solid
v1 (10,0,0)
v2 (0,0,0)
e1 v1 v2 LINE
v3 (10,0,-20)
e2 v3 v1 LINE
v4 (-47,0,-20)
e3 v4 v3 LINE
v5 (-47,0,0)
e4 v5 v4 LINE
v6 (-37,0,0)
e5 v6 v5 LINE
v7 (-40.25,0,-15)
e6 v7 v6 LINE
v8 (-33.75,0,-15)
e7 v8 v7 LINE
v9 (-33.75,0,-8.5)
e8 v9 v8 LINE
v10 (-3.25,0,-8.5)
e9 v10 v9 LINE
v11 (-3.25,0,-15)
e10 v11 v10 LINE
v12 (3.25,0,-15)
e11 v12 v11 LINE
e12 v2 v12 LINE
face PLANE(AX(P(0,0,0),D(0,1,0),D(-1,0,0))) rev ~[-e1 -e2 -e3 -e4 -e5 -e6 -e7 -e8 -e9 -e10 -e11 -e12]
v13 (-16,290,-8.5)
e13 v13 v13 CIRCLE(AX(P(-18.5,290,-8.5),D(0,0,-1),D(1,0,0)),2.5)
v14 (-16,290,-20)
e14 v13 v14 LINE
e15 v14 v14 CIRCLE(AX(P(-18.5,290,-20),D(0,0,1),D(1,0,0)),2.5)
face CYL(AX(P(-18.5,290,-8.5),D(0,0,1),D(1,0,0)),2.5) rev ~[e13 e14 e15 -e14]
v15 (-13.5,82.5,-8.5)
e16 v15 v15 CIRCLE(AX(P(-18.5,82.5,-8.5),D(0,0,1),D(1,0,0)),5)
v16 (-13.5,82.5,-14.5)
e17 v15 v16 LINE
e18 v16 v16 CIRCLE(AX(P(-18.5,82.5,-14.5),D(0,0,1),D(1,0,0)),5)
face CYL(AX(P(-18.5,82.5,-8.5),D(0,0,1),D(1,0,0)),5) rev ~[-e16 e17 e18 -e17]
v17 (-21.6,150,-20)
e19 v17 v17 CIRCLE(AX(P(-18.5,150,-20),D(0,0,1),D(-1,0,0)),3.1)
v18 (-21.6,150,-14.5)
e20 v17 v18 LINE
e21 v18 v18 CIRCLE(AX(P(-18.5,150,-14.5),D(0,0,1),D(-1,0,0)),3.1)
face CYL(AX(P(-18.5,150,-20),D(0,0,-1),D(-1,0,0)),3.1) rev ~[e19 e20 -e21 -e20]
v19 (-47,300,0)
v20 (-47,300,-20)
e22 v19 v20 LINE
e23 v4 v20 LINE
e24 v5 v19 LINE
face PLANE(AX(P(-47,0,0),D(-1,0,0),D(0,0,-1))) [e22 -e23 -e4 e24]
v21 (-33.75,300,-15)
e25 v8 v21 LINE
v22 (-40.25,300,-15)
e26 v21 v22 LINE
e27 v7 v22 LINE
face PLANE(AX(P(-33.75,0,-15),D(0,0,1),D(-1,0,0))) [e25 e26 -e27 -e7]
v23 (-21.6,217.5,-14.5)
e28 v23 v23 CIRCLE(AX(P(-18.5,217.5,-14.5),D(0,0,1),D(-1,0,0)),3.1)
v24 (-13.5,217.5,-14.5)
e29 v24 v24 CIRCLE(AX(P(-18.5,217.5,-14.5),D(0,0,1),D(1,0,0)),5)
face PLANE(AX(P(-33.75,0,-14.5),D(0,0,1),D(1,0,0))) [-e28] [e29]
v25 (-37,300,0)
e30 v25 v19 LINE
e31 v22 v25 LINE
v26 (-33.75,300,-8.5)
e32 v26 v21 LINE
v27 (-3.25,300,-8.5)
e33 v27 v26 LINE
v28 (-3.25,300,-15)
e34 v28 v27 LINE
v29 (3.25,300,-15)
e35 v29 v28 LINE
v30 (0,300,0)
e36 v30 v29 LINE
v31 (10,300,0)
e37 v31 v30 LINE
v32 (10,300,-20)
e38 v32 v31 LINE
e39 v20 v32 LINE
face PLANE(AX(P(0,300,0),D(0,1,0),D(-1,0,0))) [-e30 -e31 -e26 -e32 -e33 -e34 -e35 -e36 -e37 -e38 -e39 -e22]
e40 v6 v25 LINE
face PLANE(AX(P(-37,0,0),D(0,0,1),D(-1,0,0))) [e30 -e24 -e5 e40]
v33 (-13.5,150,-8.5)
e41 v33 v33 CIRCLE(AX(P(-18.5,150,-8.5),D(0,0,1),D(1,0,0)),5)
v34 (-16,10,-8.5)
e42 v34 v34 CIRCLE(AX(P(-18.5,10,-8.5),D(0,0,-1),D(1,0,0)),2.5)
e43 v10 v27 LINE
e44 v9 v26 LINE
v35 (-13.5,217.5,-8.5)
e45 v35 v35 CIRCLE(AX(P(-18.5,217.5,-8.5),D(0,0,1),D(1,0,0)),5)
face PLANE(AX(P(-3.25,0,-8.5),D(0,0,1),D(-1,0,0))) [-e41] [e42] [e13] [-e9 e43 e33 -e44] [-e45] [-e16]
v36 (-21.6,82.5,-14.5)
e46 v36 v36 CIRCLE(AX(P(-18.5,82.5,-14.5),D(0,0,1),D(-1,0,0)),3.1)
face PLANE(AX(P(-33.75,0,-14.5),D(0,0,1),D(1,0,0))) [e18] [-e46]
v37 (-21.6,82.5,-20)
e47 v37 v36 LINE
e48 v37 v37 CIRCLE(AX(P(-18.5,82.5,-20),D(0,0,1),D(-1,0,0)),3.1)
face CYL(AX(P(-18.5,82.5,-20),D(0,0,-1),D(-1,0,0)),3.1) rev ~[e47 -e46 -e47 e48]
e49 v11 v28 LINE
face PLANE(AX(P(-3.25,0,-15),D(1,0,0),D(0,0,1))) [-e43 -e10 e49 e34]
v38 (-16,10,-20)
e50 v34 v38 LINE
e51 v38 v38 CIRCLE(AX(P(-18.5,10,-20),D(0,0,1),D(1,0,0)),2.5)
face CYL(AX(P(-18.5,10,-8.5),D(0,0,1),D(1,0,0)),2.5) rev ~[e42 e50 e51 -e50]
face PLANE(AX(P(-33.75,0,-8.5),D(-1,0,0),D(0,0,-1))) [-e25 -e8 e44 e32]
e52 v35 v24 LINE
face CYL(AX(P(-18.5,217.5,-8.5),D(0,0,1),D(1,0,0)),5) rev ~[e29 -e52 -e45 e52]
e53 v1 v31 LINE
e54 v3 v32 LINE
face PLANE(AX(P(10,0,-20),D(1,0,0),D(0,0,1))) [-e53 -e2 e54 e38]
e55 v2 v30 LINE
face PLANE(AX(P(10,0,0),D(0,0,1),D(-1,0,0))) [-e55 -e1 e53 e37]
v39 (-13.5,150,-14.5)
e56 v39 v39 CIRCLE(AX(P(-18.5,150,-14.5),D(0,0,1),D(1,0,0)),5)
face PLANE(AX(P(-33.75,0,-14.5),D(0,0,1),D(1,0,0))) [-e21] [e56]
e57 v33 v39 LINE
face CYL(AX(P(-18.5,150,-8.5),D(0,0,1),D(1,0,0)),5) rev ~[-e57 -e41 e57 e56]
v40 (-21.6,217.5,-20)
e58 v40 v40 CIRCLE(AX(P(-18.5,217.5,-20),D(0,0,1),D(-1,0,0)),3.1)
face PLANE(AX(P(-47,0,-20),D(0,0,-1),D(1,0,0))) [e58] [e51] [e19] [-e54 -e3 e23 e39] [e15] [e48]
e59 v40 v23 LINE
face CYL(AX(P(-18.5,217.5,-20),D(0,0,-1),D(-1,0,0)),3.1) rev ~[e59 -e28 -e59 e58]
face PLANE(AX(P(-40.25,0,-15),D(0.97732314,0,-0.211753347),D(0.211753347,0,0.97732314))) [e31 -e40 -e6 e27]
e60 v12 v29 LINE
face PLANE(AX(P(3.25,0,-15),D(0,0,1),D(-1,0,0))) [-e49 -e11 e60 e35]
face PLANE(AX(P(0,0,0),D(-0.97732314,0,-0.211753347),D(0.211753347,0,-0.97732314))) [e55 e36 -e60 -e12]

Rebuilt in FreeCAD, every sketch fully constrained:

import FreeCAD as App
import Part
import Sketcher

V = App.Vector

doc = App.newDocument("Part")
body = doc.addObject("PartDesign::Body", "Body")

sketch1 = body.newObject("Sketcher::SketchObject", "Sketch")
sketch1.AttachmentSupport = (doc.getObject("XZ_Plane"), [""])
sketch1.MapMode = "FlatFace"
sketch1.addGeometry([
    Part.LineSegment(V(-47, 0, 0), V(-37, 0, 0)),
    Part.LineSegment(V(-37, 0, 0), V(-40, -15, 0)),
    Part.LineSegment(V(-40, -15, 0), V(-34, -15, 0)),
    Part.LineSegment(V(-34, -15, 0), V(-34, -8, 0)),
    Part.LineSegment(V(-34, -8, 0), V(-3, -8, 0)),
    Part.LineSegment(V(-3, -8, 0), V(-3, -15, 0)),
    Part.LineSegment(V(-3, -15, 0), V(3, -15, 0)),
    Part.LineSegment(V(3, -15, 0), V(0, 0, 0)),
    Part.LineSegment(V(0, 0, 0), V(10, 0, 0)),
    Part.LineSegment(V(10, 0, 0), V(10, -20, 0)),
    Part.LineSegment(V(10, -20, 0), V(-47, -20, 0)),
    Part.LineSegment(V(-47, -20, 0), V(-47, 0, 0)),
], False)
sketch1.addConstraint([
    Sketcher.Constraint("Coincident", 0, 2, 1, 1),
    Sketcher.Constraint("Coincident", 1, 2, 2, 1),
    Sketcher.Constraint("Coincident", 2, 2, 3, 1),
    Sketcher.Constraint("Coincident", 3, 2, 4, 1),
    Sketcher.Constraint("Coincident", 4, 2, 5, 1),
    Sketcher.Constraint("Coincident", 5, 2, 6, 1),
    Sketcher.Constraint("Coincident", 6, 2, 7, 1),
    Sketcher.Constraint("Coincident", 7, 2, 8, 1),
    Sketcher.Constraint("Coincident", 8, 2, 9, 1),
    Sketcher.Constraint("Coincident", 9, 2, 10, 1),
    Sketcher.Constraint("Coincident", 10, 2, 11, 1),
    Sketcher.Constraint("Coincident", 11, 2, 0, 1),
    Sketcher.Constraint("Horizontal", 0),
    Sketcher.Constraint("Horizontal", 2),
    Sketcher.Constraint("Vertical", 3),
    Sketcher.Constraint("Horizontal", 4),
    Sketcher.Constraint("Vertical", 5),
    Sketcher.Constraint("Horizontal", 6),
    Sketcher.Constraint("Horizontal", 8),
    Sketcher.Constraint("Vertical", 9),
    Sketcher.Constraint("Horizontal", 10),
    Sketcher.Constraint("Vertical", 11),
    Sketcher.Constraint("Coincident", 7, 2, -1, 1),
    Sketcher.Constraint("PointOnObject", 0, 2, -1),
    Sketcher.Constraint("Horizontal", 2, 2, 5, 2),
    Sketcher.Constraint("Equal", 2, 6),
    Sketcher.Constraint("Equal", 0, 8),
    Sketcher.Constraint("Equal", 6, 3),
    Sketcher.Constraint("Equal", 1, 7),
    Sketcher.Constraint("DistanceX", 0, 1, 0, 2, 10.0),
    Sketcher.Constraint("DistanceY", 9, 2, 9, 1, 20.0),
    Sketcher.Constraint("DistanceX", 10, 2, 10, 1, 57.0),
    Sketcher.Constraint("DistanceX", 2, 1, 2, 2, 6.5),
    Sketcher.Constraint("DistanceX", 4, 1, 4, 2, 30.5),
    Sketcher.Constraint("DistanceY", 1, 2, -1, 1, 15.0),
])
pad1 = body.newObject("PartDesign::Pad", "Pad")
pad1.Profile = sketch1
pad1.Length = 300
pad1.Reversed = True

sketch2 = body.newObject("Sketcher::SketchObject", "Sketch001")
sketch2.AttachmentSupport = (doc.getObject("XY_Plane"), [""])
sketch2.MapMode = "FlatFace"
sketch2.AttachmentOffset = App.Placement(V(0, 0, -20), App.Rotation())
sketch2.addGeometry([
    Part.Circle(V(-18.5, 82.5, 0), V(0, 0, 1), 3.1),
    Part.Circle(V(-18.5, 217.5, 0), V(0, 0, 1), 3.1),
    Part.Circle(V(-18.5, 150, 0), V(0, 0, 1), 3.1),
], False)
sketch2.addConstraint([
    Sketcher.Constraint("Equal", 0, 1),
    Sketcher.Constraint("Equal", 1, 2),
    Sketcher.Constraint("Vertical", 0, 3, 1, 3),
    Sketcher.Constraint("Vertical", 1, 3, 2, 3),
    Sketcher.Constraint("Diameter", 0, 6.2),
    Sketcher.Constraint("DistanceY", -1, 1, 2, 3, 150.0),
    Sketcher.Constraint("DistanceY", 0, 3, 1, 3, 135.0),
    Sketcher.Constraint("DistanceX", 0, 3, -1, 1, 18.5),
    Sketcher.Constraint("DistanceY", -1, 1, 0, 3, 82.5),
])
pocket1 = body.newObject("PartDesign::Pocket", "Pocket")
pocket1.Profile = sketch2
pocket1.Length = 11.5
pocket1.Reversed = True

sketch3 = body.newObject("Sketcher::SketchObject", "Sketch002")
sketch3.AttachmentSupport = (doc.getObject("XY_Plane"), [""])
sketch3.MapMode = "FlatFace"
sketch3.AttachmentOffset = App.Placement(V(0, 0, -8.5), App.Rotation())
sketch3.addGeometry([
    Part.Circle(V(-18.5, 82.5, 0), V(0, 0, 1), 5),
    Part.Circle(V(-18.5, 82.5, 0), V(0, 0, 1), 3.1),
    Part.Circle(V(-18.5, 150, 0), V(0, 0, 1), 5),
    Part.Circle(V(-18.5, 150, 0), V(0, 0, 1), 3.1),
    Part.Circle(V(-18.5, 217.5, 0), V(0, 0, 1), 5),
    Part.Circle(V(-18.5, 217.5, 0), V(0, 0, 1), 3.1),
], False)
sketch3.addConstraint([
    Sketcher.Constraint("Coincident", 1, 3, 0, 3),
    Sketcher.Constraint("Coincident", 3, 3, 2, 3),
    Sketcher.Constraint("Coincident", 5, 3, 4, 3),
    Sketcher.Constraint("Equal", 0, 2),
    Sketcher.Constraint("Equal", 1, 3),
    Sketcher.Constraint("Equal", 2, 4),
    Sketcher.Constraint("Equal", 3, 5),
    Sketcher.Constraint("Vertical", 1, 3, 2, 3),
    Sketcher.Constraint("Vertical", 3, 3, 4, 3),
    Sketcher.Constraint("Diameter", 0, 10.0),
    Sketcher.Constraint("Diameter", 1, 6.2),
    Sketcher.Constraint("DistanceY", -1, 1, 2, 3, 150.0),
    Sketcher.Constraint("DistanceY", 0, 3, 4, 3, 135.0),
    Sketcher.Constraint("DistanceX", 0, 3, -1, 1, 18.5),
    Sketcher.Constraint("DistanceY", -1, 1, 0, 3, 82.5),
])
pocket2 = body.newObject("PartDesign::Pocket", "Pocket001")
pocket2.Profile = sketch3
pocket2.Length = 6

sketch4 = body.newObject("Sketcher::SketchObject", "Sketch003")
sketch4.AttachmentSupport = (doc.getObject("XY_Plane"), [""])
sketch4.MapMode = "FlatFace"
sketch4.AttachmentOffset = App.Placement(V(0, 0, -8.5), App.Rotation())
sketch4.addGeometry([
    Part.Circle(V(-18.5, 290, 0), V(0, 0, 1), 2.5),
    Part.Circle(V(-18.5, 10, 0), V(0, 0, 1), 2.5),
], False)
sketch4.addConstraint([
    Sketcher.Constraint("Equal", 0, 1),
    Sketcher.Constraint("Vertical", 0, 3, 1, 3),
    Sketcher.Constraint("Diameter", 0, 5.0),
    Sketcher.Constraint("DistanceY", -1, 1, 1, 3, 10.0),
    Sketcher.Constraint("DistanceY", -1, 1, 0, 3, 290.0),
    Sketcher.Constraint("DistanceX", 0, 3, -1, 1, 18.5),
])
pocket3 = body.newObject("PartDesign::Pocket", "Pocket002")
pocket3.Profile = sketch4
pocket3.Length = 11.5

doc.recompute()
